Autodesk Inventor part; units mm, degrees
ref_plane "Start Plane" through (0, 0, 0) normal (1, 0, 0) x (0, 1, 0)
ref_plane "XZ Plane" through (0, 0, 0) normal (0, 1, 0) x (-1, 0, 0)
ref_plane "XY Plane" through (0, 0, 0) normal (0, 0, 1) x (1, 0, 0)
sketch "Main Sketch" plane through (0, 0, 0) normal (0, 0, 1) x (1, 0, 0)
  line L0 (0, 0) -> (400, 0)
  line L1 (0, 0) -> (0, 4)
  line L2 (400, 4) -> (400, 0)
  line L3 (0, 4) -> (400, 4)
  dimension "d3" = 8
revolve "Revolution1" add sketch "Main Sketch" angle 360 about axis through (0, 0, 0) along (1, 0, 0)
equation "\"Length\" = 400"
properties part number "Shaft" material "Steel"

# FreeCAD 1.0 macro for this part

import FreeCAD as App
import Part
import Sketcher
from FreeCAD import Vector

doc = App.newDocument("Part")
body = doc.addObject("PartDesign::Body", "Body")

# Sketch on XY plane
sketch1 = doc.addObject("Sketcher::SketchObject", "Sketch")
body.addObject(sketch1)
sketch1.AttachmentSupport = (doc.XY_Plane, [""])
sketch1.MapMode = "FlatFace"
sketch1.addGeometry([
    Part.LineSegment(Vector(0, 4, 0), Vector(0, 0, 0)),
    Part.LineSegment(Vector(0, 0, 0), Vector(400, 0, 0)),
    Part.LineSegment(Vector(400, 0, 0), Vector(400, 4, 0)),
    Part.LineSegment(Vector(400, 4, 0), Vector(0, 4, 0)),
], False)
sketch1.addConstraint([
    Sketcher.Constraint("Coincident", 0, 2, 1, 1),
    Sketcher.Constraint("Coincident", 1, 2, 2, 1),
    Sketcher.Constraint("Coincident", 2, 2, 3, 1),
    Sketcher.Constraint("Coincident", 3, 2, 0, 1),
    Sketcher.Constraint("Vertical", 0),
    Sketcher.Constraint("Horizontal", 1),
    Sketcher.Constraint("Vertical", 2),
    Sketcher.Constraint("Horizontal", 3),
    Sketcher.Constraint("Coincident", 0, 2, -1, 1),
    Sketcher.Constraint("DistanceX", 1, 1, 1, 2, 400.0),
    Sketcher.Constraint("DistanceY", 0, 2, 0, 1, 4.0),
])
revolution = doc.addObject("PartDesign::Revolution", "Revolution")
body.addObject(revolution)
revolution.Profile = sketch1
revolution.ReferenceAxis = (sketch1, ["H_Axis"])
revolution.Angle = 360

doc.recompute()
